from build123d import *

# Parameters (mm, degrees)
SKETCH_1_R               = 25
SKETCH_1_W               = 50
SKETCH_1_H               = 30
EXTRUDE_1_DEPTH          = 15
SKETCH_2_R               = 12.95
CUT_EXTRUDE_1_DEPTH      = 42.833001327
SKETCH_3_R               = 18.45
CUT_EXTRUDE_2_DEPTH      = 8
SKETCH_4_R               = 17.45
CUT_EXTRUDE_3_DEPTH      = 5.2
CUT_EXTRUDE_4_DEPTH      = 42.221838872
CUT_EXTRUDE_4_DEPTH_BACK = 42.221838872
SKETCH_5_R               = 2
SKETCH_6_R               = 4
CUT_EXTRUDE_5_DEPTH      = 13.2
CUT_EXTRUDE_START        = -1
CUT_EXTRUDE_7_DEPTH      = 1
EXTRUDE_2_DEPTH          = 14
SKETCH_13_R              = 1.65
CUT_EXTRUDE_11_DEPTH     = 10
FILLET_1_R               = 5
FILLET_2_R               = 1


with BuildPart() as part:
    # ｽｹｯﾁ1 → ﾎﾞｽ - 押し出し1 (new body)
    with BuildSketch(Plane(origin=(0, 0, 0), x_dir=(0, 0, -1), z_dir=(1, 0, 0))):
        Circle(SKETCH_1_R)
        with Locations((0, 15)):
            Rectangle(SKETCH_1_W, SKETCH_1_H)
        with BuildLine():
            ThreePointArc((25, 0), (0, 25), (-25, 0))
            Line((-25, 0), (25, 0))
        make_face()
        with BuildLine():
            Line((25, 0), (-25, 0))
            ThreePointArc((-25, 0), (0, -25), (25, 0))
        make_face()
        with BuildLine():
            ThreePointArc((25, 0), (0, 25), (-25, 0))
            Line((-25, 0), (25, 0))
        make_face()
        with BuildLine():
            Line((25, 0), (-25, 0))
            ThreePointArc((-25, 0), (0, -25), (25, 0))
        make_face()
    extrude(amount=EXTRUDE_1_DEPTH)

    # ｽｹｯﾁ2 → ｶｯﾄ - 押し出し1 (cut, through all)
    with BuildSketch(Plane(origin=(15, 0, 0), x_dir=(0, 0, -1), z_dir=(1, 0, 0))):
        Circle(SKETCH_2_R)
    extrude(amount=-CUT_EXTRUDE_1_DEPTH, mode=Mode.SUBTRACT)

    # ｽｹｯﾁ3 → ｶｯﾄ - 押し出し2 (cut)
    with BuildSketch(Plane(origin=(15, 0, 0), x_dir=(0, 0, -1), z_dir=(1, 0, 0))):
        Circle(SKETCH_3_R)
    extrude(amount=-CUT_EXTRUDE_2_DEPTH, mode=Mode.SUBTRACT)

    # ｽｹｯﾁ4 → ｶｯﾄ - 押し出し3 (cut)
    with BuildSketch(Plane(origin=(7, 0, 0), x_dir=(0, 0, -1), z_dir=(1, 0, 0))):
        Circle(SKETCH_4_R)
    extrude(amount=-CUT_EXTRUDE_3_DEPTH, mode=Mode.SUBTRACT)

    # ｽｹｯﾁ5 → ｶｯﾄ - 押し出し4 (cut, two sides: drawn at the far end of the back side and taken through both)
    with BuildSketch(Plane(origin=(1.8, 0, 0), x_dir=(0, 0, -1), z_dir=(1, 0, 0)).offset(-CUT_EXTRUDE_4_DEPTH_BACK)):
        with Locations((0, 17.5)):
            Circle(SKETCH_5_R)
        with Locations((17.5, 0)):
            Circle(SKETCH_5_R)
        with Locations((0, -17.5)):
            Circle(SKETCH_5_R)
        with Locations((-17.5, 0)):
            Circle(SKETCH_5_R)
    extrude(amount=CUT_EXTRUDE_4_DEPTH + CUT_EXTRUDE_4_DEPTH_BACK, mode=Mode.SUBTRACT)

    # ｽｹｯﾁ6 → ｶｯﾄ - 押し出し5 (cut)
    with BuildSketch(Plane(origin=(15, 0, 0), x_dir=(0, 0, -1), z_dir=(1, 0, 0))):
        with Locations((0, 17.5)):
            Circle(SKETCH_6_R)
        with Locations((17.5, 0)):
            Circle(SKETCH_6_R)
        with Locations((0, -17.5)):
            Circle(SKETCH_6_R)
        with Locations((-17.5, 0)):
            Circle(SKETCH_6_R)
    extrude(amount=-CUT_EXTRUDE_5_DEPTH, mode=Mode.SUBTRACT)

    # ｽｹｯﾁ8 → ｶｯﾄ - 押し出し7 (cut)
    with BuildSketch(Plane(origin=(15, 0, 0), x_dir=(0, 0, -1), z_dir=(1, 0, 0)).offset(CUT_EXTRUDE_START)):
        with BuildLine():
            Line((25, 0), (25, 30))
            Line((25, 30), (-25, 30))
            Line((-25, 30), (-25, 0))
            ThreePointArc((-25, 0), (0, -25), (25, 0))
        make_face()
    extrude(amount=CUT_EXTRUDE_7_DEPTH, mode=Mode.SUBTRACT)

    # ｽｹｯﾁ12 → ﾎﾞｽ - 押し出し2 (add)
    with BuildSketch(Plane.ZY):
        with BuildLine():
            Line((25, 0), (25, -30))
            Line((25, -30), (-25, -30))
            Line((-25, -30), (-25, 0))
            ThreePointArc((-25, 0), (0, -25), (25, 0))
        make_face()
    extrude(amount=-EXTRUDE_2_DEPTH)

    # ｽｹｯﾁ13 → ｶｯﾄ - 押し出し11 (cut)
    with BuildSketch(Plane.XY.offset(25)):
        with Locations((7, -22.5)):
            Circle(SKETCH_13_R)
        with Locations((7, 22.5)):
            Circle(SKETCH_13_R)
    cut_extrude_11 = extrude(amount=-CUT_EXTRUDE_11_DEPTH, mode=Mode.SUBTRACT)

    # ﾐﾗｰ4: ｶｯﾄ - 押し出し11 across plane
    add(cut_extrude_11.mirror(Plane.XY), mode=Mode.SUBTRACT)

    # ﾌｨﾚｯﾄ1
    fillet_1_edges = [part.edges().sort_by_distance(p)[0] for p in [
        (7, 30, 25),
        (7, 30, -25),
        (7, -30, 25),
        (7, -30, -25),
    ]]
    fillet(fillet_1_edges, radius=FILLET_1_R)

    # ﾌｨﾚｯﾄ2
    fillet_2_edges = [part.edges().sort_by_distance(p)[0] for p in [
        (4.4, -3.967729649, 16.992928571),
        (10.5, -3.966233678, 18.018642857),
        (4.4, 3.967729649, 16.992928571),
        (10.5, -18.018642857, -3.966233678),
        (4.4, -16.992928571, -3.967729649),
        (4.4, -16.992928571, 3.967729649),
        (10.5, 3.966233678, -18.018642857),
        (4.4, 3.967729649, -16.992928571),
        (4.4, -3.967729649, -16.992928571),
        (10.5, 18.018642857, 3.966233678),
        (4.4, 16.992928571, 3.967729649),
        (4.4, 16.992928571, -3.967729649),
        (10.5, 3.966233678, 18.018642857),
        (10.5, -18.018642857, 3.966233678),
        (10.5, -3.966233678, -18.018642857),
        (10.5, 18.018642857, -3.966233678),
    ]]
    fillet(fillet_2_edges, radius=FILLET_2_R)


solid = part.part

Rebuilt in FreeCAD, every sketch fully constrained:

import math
import FreeCAD as App
import Part
import Sketcher
from FreeCAD import Vector


def edges_at(feature, points):
    """Names of the edges that pass closest to the given points."""
    edges = feature.Shape.Edges
    near = lambda p: min(range(len(edges)), key=lambda i: edges[i].distToShape(Part.Vertex(*p))[0])
    return sorted({f"Edge{near(p) + 1}" for p in points})

doc = App.newDocument("Part")
params = doc.addObject("Spreadsheet::Sheet", "Params")
for row, (alias, value) in enumerate([
    ("sketch1_radius", "25 mm"),
    ("sketch1_width", "30 mm"),
    ("pad1_length", "15 mm"),
    ("sketch2_diameter", "25.9 mm"),
    ("sketch3_diameter", "36.9 mm"),
    ("pocket2_length", "8 mm"),
    ("sketch4_diameter", "34.9 mm"),
    ("pocket3_length", "5.2 mm"),
    ("sketch5_diameter", "4 mm"),
    ("sketch6_diameter", "8 mm"),
    ("pocket5_length", "13.2 mm"),
    ("sketch7_radius", "25 mm"),
    ("sketch7_width", "30 mm"),
    ("pocket6_length", "1 mm"),
    ("sketch8_radius", "25 mm"),
    ("sketch8_width", "30 mm"),
    ("pad2_length", "14 mm"),
    ("sketch9_diameter", "3.3 mm"),
    ("pocket7_length", "10 mm"),
    ("fillet_radius", "5 mm"),
    ("fillet2_radius", "1 mm"),
], start=1):
    params.set(f"A{row}", alias)
    params.set(f"B{row}", "=" + value)
    params.setAlias(f"B{row}", alias)

body = doc.addObject("PartDesign::Body", "Body")

sketch1 = body.newObject("Sketcher::SketchObject", "Sketch")
sketch1.AttachmentSupport = (doc.getObject("YZ_Plane"), [""])
sketch1.MapMode = "FlatFace"
sketch1.addGeometry([
    Part.ArcOfCircle(Part.Circle(Vector(0, 0, 0), Vector(0, 0, 1), 25), math.radians(90), math.radians(270)),
    Part.LineSegment(Vector(0, -25, 0), Vector(30, -25, 0)),
    Part.LineSegment(Vector(30, -25, 0), Vector(30, 25, 0)),
    Part.LineSegment(Vector(30, 25, 0), Vector(0, 25, 0)),
], False)
sketch1.addConstraint([
    Sketcher.Constraint("Tangent", 0, 2, 1, 1),
    Sketcher.Constraint("Coincident", 1, 2, 2, 1),
    Sketcher.Constraint("Coincident", 2, 2, 3, 1),
    Sketcher.Constraint("Tangent", 3, 2, 0, 1),
    Sketcher.Constraint("Horizontal", 1),
    Sketcher.Constraint("Vertical", 2),
    Sketcher.Constraint("Horizontal", 3),
    Sketcher.Constraint("Coincident", 0, 3, -1, 1),
    Sketcher.Constraint("Radius", 0, 25.0),
    Sketcher.Constraint("DistanceX", 1, 1, 1, 2, 30.0),
])
sketch1.setExpression("Constraints[8]", "Params.sketch1_radius")
sketch1.setExpression("Constraints[9]", "Params.sketch1_width")
pad1 = body.newObject("PartDesign::Pad", "Pad")
pad1.Profile = sketch1
pad1.setExpression("Length", "Params.pad1_length")

sketch2 = body.newObject("Sketcher::SketchObject", "Sketch001")
sketch2.AttachmentSupport = (doc.getObject("YZ_Plane"), [""])
sketch2.MapMode = "FlatFace"
sketch2.AttachmentOffset = App.Placement(Vector(0, 0, 15), App.Rotation())
sketch2.addGeometry(Part.Circle(Vector(0, 0, 0), Vector(0, 0, 1), 13), False)
sketch2.addConstraint([
    Sketcher.Constraint("Coincident", 0, 3, -1, 1),
    Sketcher.Constraint("Diameter", 0, 25.9),
])
sketch2.setExpression("Constraints[1]", "Params.sketch2_diameter")
pocket1 = body.newObject("PartDesign::Pocket", "Pocket")
pocket1.Profile = sketch2
pocket1.Type = "ThroughAll"

sketch3 = body.newObject("Sketcher::SketchObject", "Sketch002")
sketch3.AttachmentSupport = (doc.getObject("YZ_Plane"), [""])
sketch3.MapMode = "FlatFace"
sketch3.AttachmentOffset = App.Placement(Vector(0, 0, 15), App.Rotation())
sketch3.addGeometry(Part.Circle(Vector(0, 0, 0), Vector(0, 0, 1), 18), False)
sketch3.addConstraint([
    Sketcher.Constraint("Coincident", 0, 3, -1, 1),
    Sketcher.Constraint("Diameter", 0, 36.9),
])
sketch3.setExpression("Constraints[1]", "Params.sketch3_diameter")
pocket2 = body.newObject("PartDesign::Pocket", "Pocket001")
pocket2.Profile = sketch3
pocket2.setExpression("Length", "Params.pocket2_length")

sketch4 = body.newObject("Sketcher::SketchObject", "Sketch003")
sketch4.AttachmentSupport = (doc.getObject("YZ_Plane"), [""])
sketch4.MapMode = "FlatFace"
sketch4.AttachmentOffset = App.Placement(Vector(0, 0, 7), App.Rotation())
sketch4.addGeometry(Part.Circle(Vector(0, 0, 0), Vector(0, 0, 1), 17), False)
sketch4.addConstraint([
    Sketcher.Constraint("Coincident", 0, 3, -1, 1),
    Sketcher.Constraint("Diameter", 0, 34.9),
])
sketch4.setExpression("Constraints[1]", "Params.sketch4_diameter")
pocket3 = body.newObject("PartDesign::Pocket", "Pocket002")
pocket3.Profile = sketch4
pocket3.setExpression("Length", "Params.pocket3_length")

sketch5 = body.newObject("Sketcher::SketchObject", "Sketch004")
sketch5.AttachmentSupport = (doc.getObject("YZ_Plane"), [""])
sketch5.MapMode = "FlatFace"
sketch5.AttachmentOffset = App.Placement(Vector(0, 0, 1.8), App.Rotation())
sketch5.addGeometry([
    Part.Circle(Vector(17.5, 0, 0), Vector(0, 0, 1), 2),
    Part.Circle(Vector(0, -17.5, 0), Vector(0, 0, 1), 2),
    Part.Circle(Vector(-17.5, 0, 0), Vector(0, 0, 1), 2),
    Part.Circle(Vector(0, 17.5, 0), Vector(0, 0, 1), 2),
], False)
sketch5.addConstraint([
    Sketcher.Constraint("Equal", 0, 1),
    Sketcher.Constraint("Equal", 1, 2),
    Sketcher.Constraint("Equal", 2, 3),
    Sketcher.Constraint("Symmetric", 0, 3, 2, 3, -1, 1),
    Sketcher.Constraint("Symmetric", 1, 3, 3, 3, -1, 1),
    Sketcher.Constraint("PointOnObject", 0, 3, -1),
    Sketcher.Constraint("PointOnObject", 1, 3, -2),
    Sketcher.Constraint("Diameter", 0, 4.0),
    Sketcher.Constraint("DistanceX", 2, 3, 0, 3, 35.0),
    Sketcher.Constraint("DistanceY", 1, 3, 3, 3, 35.0),
])
sketch5.setExpression("Constraints[7]", "Params.sketch5_diameter")
pocket4 = body.newObject("PartDesign::Pocket", "Pocket003")
pocket4.Profile = sketch5
pocket4.Type = "ThroughAll"
pocket4.Midplane = True

sketch6 = body.newObject("Sketcher::SketchObject", "Sketch005")
sketch6.AttachmentSupport = (doc.getObject("YZ_Plane"), [""])
sketch6.MapMode = "FlatFace"
sketch6.AttachmentOffset = App.Placement(Vector(0, 0, 15), App.Rotation())
sketch6.addGeometry([
    Part.Circle(Vector(17.5, 0, 0), Vector(0, 0, 1), 4),
    Part.Circle(Vector(0, -17.5, 0), Vector(0, 0, 1), 4),
    Part.Circle(Vector(-17.5, 0, 0), Vector(0, 0, 1), 4),
    Part.Circle(Vector(0, 17.5, 0), Vector(0, 0, 1), 4),
], False)
sketch6.addConstraint([
    Sketcher.Constraint("Equal", 0, 1),
    Sketcher.Constraint("Equal", 1, 2),
    Sketcher.Constraint("Equal", 2, 3),
    Sketcher.Constraint("Symmetric", 0, 3, 2, 3, -1, 1),
    Sketcher.Constraint("Symmetric", 1, 3, 3, 3, -1, 1),
    Sketcher.Constraint("PointOnObject", 0, 3, -1),
    Sketcher.Constraint("PointOnObject", 1, 3, -2),
    Sketcher.Constraint("Diameter", 0, 8.0),
    Sketcher.Constraint("DistanceX", 2, 3, 0, 3, 35.0),
    Sketcher.Constraint("DistanceY", 1, 3, 3, 3, 35.0),
])
sketch6.setExpression("Constraints[7]", "Params.sketch6_diameter")
pocket5 = body.newObject("PartDesign::Pocket", "Pocket004")
pocket5.Profile = sketch6
pocket5.setExpression("Length", "Params.pocket5_length")

sketch7 = body.newObject("Sketcher::SketchObject", "Sketch006")
sketch7.AttachmentSupport = (doc.getObject("YZ_Plane"), [""])
sketch7.MapMode = "FlatFace"
sketch7.AttachmentOffset = App.Placement(Vector(0, 0, 14), App.Rotation())
sketch7.addGeometry([
    Part.LineSegment(Vector(0, -25, 0), Vector(30, -25, 0)),
    Part.LineSegment(Vector(30, -25, 0), Vector(30, 25, 0)),
    Part.LineSegment(Vector(30, 25, 0), Vector(0, 25, 0)),
    Part.ArcOfCircle(Part.Circle(Vector(0, 0, 0), Vector(0, 0, 1), 25), math.radians(90), math.radians(270)),
], False)
sketch7.addConstraint([
    Sketcher.Constraint("Coincident", 0, 2, 1, 1),
    Sketcher.Constraint("Coincident", 1, 2, 2, 1),
    Sketcher.Constraint("Tangent", 2, 2, 3, 1),
    Sketcher.Constraint("Tangent", 3, 2, 0, 1),
    Sketcher.Constraint("Horizontal", 0),
    Sketcher.Constraint("Vertical", 1),
    Sketcher.Constraint("Horizontal", 2),
    Sketcher.Constraint("Coincident", 3, 3, -1, 1),
    Sketcher.Constraint("Radius", 3, 25.0),
    Sketcher.Constraint("DistanceX", 0, 1, 0, 2, 30.0),
])
sketch7.setExpression("Constraints[8]", "Params.sketch7_radius")
sketch7.setExpression("Constraints[9]", "Params.sketch7_width")
pocket6 = body.newObject("PartDesign::Pocket", "Pocket005")
pocket6.Profile = sketch7
pocket6.setExpression("Length", "Params.pocket6_length")
pocket6.Reversed = True

sketch8 = body.newObject("Sketcher::SketchObject", "Sketch007")
sketch8.AttachmentSupport = (doc.getObject("YZ_Plane"), [""])
sketch8.MapMode = "FlatFace"
sketch8.addGeometry([
    Part.LineSegment(Vector(-30, 25, 0), Vector(0, 25, 0)),
    Part.ArcOfCircle(Part.Circle(Vector(0, 0, 0), Vector(0, 0, 1), 25), math.radians(90), math.radians(270)),
    Part.LineSegment(Vector(0, -25, 0), Vector(-30, -25, 0)),
    Part.LineSegment(Vector(-30, -25, 0), Vector(-30, 25, 0)),
], False)
sketch8.addConstraint([
    Sketcher.Constraint("Tangent", 0, 2, 1, 1),
    Sketcher.Constraint("Tangent", 1, 2, 2, 1),
    Sketcher.Constraint("Coincident", 2, 2, 3, 1),
    Sketcher.Constraint("Coincident", 3, 2, 0, 1),
    Sketcher.Constraint("Horizontal", 0),
    Sketcher.Constraint("Horizontal", 2),
    Sketcher.Constraint("Vertical", 3),
    Sketcher.Constraint("Coincident", 1, 3, -1, 1),
    Sketcher.Constraint("Radius", 1, 25.0),
    Sketcher.Constraint("DistanceX", 0, 1, 0, 2, 30.0),
])
sketch8.setExpression("Constraints[8]", "Params.sketch8_radius")
sketch8.setExpression("Constraints[9]", "Params.sketch8_width")
pad2 = body.newObject("PartDesign::Pad", "Pad001")
pad2.Profile = sketch8
pad2.setExpression("Length", "Params.pad2_length")

sketch9 = body.newObject("Sketcher::SketchObject", "Sketch008")
sketch9.AttachmentSupport = (doc.getObject("XY_Plane"), [""])
sketch9.MapMode = "FlatFace"
sketch9.AttachmentOffset = App.Placement(Vector(0, 0, 25), App.Rotation())
sketch9.addGeometry([
    Part.Circle(Vector(7, -22.5, 0), Vector(0, 0, 1), 1.6),
    Part.Circle(Vector(7, 22.5, 0), Vector(0, 0, 1), 1.6),
], False)
sketch9.addConstraint([
    Sketcher.Constraint("Equal", 0, 1),
    Sketcher.Constraint("Symmetric", 0, 3, 1, 3, -1),
    Sketcher.Constraint("Diameter", 0, 3.3),
    Sketcher.Constraint("DistanceX", -1, 1, 0, 3, 7.0),
    Sketcher.Constraint("DistanceY", 0, 3, 1, 3, 45.0),
])
sketch9.setExpression("Constraints[2]", "Params.sketch9_diameter")
pocket7 = body.newObject("PartDesign::Pocket", "Pocket006")
pocket7.Profile = sketch9
pocket7.setExpression("Length", "Params.pocket7_length")
doc.recompute()

mirrored = body.newObject("PartDesign::Mirrored", "Mirrored")
mirrored.Originals = [pocket7]
mirrored.MirrorPlane = (doc.getObject("XY_Plane"), [""])
body.Tip = mirrored
doc.recompute()

fillet = body.newObject("PartDesign::Fillet", "Fillet")
fillet.Base = (mirrored, edges_at(mirrored, [
    (7, 30, 25),
    (7, 30, -25),
    (7, -30, 25),
    (7, -30, -25),
]))
fillet.setExpression("Radius", "Params.fillet_radius")
doc.recompute()

fillet2 = body.newObject("PartDesign::Fillet", "Fillet001")
fillet2.Base = (fillet, edges_at(fillet, [
    (4.4, -3.968, 16.993),
    (10.5, -3.966, 18.019),
    (4.4, 3.968, 16.993),
    (10.5, -18.019, -3.966),
    (4.4, -16.993, -3.968),
    (4.4, -16.993, 3.968),
    (10.5, 3.966, -18.019),
    (4.4, 3.968, -16.993),
    (4.4, -3.968, -16.993),
    (10.5, 18.019, 3.966),
    (4.4, 16.993, 3.968),
    (4.4, 16.993, -3.968),
    (10.5, 3.966, 18.019),
    (10.5, -18.019, 3.966),
    (10.5, -3.966, -18.019),
    (10.5, 18.019, -3.966),
]))
fillet2.setExpression("Radius", "Params.fillet2_radius")

doc.recompute()
